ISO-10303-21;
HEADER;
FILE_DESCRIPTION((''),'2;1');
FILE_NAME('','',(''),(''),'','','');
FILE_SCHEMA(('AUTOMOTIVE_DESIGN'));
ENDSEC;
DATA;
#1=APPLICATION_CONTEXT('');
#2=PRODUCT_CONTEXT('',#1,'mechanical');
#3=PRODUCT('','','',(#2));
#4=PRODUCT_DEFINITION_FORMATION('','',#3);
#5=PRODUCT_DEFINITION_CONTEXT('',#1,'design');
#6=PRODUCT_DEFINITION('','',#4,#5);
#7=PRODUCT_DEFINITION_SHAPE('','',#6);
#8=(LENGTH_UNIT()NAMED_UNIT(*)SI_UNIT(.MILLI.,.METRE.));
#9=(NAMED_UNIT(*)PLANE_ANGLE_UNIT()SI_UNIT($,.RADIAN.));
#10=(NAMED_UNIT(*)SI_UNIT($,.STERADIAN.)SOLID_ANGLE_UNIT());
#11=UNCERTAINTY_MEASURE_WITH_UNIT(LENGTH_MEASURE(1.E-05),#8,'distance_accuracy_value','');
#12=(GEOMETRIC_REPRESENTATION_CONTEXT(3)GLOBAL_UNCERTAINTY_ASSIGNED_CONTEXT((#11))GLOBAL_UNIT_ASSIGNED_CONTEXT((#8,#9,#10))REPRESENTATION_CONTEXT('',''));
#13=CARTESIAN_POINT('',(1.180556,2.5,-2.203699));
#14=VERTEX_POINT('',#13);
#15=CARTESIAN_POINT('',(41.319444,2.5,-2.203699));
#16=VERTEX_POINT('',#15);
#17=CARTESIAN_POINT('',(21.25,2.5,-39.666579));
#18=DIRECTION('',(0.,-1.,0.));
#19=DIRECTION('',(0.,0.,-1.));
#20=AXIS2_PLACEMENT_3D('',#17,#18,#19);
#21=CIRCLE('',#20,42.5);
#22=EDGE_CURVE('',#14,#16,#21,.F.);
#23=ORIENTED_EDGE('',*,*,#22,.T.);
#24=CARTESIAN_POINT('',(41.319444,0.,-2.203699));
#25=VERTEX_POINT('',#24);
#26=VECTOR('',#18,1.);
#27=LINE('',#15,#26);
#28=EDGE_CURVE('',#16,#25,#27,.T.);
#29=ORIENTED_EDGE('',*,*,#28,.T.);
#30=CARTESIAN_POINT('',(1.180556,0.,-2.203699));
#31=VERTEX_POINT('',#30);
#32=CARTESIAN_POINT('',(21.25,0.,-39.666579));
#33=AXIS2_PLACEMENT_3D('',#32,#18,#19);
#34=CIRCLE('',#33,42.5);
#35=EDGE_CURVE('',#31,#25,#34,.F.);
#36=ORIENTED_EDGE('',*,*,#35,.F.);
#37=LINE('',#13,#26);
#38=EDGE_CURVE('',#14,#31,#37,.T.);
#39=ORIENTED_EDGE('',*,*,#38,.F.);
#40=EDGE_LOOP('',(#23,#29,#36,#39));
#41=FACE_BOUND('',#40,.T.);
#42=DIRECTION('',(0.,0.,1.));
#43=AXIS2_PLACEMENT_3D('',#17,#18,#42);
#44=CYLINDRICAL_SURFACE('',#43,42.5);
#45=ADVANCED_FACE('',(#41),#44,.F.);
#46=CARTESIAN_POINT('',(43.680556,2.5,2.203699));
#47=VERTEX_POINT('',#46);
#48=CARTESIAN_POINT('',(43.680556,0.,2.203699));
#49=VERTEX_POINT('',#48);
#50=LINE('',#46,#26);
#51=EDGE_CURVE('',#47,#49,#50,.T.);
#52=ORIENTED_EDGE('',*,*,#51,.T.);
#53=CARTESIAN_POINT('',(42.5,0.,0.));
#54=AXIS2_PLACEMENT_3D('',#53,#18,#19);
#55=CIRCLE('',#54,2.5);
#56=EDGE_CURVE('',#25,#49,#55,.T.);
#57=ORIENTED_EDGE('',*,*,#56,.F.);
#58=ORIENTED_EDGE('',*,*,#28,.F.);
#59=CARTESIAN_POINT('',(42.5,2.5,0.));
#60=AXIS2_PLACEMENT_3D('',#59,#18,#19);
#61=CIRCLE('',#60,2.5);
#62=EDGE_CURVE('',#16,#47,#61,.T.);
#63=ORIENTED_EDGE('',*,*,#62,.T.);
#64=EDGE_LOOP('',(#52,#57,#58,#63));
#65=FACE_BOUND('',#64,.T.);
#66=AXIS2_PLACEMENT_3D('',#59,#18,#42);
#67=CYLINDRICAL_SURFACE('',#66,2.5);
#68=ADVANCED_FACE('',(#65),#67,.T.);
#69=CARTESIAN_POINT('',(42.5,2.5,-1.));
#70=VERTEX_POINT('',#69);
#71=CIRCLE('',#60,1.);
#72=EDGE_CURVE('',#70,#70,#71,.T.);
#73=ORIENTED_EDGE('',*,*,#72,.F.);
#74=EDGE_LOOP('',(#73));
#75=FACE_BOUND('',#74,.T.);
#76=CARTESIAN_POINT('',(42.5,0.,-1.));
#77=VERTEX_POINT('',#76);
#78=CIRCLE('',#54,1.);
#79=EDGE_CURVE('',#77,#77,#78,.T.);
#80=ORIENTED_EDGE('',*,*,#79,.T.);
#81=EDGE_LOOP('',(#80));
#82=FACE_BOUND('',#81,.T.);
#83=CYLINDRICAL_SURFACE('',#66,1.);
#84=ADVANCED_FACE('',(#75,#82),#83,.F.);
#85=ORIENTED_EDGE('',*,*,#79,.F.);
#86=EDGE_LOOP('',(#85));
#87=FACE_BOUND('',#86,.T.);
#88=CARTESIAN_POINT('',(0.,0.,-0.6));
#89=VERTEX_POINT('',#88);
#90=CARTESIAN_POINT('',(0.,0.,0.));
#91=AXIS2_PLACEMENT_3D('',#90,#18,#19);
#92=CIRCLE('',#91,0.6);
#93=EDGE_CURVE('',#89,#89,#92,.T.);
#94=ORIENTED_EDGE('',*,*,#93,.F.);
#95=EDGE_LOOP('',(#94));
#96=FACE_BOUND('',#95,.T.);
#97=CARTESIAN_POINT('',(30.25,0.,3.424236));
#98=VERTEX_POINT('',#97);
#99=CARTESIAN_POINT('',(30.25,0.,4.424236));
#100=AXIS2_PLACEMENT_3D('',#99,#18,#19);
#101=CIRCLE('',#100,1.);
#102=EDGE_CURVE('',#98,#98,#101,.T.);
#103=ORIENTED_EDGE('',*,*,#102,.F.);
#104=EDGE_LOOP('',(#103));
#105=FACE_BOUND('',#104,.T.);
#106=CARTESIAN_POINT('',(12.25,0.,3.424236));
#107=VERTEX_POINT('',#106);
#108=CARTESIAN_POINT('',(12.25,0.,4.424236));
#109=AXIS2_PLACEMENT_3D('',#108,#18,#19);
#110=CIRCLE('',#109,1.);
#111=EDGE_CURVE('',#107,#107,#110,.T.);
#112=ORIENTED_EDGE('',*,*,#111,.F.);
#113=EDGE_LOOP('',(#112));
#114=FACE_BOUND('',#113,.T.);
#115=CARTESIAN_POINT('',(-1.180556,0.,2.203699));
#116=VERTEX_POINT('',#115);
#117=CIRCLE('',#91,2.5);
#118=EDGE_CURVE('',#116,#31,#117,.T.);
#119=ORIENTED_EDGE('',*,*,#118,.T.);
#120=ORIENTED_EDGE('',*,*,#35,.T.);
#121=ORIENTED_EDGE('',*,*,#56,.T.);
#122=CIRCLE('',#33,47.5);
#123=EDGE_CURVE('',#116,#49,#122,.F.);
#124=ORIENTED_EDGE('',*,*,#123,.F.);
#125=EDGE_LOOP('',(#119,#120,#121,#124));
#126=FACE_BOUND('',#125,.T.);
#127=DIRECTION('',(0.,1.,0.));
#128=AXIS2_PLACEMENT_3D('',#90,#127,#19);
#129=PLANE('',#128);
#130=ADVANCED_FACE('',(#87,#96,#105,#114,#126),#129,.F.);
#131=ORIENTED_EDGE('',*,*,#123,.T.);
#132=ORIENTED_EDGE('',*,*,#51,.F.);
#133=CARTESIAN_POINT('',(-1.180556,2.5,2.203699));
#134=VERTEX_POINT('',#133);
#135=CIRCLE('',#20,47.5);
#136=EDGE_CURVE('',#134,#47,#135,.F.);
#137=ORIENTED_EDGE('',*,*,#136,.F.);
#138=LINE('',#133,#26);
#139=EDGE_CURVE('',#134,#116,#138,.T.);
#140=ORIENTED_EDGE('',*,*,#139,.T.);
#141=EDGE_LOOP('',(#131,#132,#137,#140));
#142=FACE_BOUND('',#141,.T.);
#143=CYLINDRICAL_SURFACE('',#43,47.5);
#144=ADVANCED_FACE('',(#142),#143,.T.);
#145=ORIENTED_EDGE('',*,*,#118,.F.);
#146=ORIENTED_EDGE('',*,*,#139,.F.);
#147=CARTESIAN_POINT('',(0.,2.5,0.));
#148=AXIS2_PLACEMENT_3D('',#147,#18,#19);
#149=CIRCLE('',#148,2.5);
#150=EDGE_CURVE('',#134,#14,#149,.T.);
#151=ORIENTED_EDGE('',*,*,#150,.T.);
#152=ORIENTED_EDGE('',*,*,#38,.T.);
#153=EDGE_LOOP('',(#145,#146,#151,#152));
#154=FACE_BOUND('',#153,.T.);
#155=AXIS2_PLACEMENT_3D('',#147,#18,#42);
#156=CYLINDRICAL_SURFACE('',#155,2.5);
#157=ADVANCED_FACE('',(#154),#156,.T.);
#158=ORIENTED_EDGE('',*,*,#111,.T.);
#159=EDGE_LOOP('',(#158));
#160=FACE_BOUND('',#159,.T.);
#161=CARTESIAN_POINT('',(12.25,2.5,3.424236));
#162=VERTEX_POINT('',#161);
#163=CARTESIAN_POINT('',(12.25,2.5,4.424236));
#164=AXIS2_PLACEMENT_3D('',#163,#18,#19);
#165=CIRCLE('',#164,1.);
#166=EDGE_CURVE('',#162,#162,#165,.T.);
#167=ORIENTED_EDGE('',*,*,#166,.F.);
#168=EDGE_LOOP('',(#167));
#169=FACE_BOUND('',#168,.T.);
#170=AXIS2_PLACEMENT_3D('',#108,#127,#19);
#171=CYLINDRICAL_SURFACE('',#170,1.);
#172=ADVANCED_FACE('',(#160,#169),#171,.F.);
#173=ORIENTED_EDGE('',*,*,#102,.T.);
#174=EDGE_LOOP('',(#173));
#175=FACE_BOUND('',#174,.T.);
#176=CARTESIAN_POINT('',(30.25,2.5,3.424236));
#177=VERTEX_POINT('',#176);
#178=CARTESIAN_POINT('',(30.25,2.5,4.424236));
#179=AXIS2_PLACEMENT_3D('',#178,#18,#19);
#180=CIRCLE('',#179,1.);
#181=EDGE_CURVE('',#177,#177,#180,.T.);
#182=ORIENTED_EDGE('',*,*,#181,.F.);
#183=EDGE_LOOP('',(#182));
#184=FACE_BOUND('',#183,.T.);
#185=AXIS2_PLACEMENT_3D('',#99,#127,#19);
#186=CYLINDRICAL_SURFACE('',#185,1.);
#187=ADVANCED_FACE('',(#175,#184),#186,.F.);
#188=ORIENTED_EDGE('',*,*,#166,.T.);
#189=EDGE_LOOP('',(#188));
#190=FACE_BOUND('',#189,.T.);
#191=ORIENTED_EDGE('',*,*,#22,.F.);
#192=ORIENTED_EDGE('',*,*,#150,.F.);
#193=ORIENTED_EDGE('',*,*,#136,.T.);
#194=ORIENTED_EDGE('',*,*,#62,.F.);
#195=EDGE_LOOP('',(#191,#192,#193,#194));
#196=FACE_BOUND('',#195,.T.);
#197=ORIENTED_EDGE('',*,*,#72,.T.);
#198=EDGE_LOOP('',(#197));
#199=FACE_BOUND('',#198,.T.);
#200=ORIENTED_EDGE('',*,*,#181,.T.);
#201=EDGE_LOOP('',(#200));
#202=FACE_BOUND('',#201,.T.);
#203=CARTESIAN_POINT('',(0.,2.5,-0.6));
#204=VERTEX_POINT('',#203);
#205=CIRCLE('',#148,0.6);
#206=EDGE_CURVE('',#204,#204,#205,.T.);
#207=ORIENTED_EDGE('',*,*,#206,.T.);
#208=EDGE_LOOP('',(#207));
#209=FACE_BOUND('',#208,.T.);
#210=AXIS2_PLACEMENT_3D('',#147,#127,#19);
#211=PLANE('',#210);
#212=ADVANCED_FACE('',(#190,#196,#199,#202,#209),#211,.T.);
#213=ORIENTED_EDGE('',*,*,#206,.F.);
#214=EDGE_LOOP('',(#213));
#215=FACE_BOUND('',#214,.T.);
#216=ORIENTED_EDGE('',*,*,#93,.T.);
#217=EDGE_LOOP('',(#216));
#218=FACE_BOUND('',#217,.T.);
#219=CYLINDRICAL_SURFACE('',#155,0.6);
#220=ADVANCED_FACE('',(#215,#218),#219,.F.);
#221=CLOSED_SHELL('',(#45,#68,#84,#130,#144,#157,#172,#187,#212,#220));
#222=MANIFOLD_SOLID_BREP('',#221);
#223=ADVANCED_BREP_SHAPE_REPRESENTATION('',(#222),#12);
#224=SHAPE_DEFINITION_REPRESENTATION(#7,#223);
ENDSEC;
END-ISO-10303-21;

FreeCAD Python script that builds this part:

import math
import FreeCAD as App
import Part
import Sketcher

V = App.Vector

doc = App.newDocument("Part")
body = doc.addObject("PartDesign::Body", "Body")

sketch1 = doc.addObject("Sketcher::SketchObject", "Sketch")
body.addObject(sketch1)
sketch1.AttachmentSupport = (doc.XZ_Plane, [""])
sketch1.MapMode = "FlatFace"
sketch1.addGeometry([
    Part.ArcOfCircle(Part.Circle(V(0, 0, 0), V(0, 0, 1), 2.5), math.radians(62), math.radians(242)),
    Part.ArcOfCircle(Part.Circle(V(21.2, 39.7, 0), V(0, 0, 1), 42.5), math.radians(-118), math.radians(-62)),
    Part.ArcOfCircle(Part.Circle(V(42.5, 0, 0), V(0, 0, 1), 2.5), math.radians(-62), math.radians(118)),
    Part.ArcOfCircle(Part.Circle(V(21.2, 39.7, 0), V(0, 0, 1), 47.5), math.radians(-118), math.radians(-62)),
    Part.Circle(V(0, 0, 0), V(0, 0, 1), 0.6),
    Part.Circle(V(42.5, 0, 0), V(0, 0, 1), 1),
], False)
sketch1.addConstraint([
    Sketcher.Constraint("Tangent", 0, 1, 1, 1),
    Sketcher.Constraint("Tangent", 1, 2, 2, 2),
    Sketcher.Constraint("Tangent", 2, 1, 3, 2),
    Sketcher.Constraint("Tangent", 3, 1, 0, 2),
    Sketcher.Constraint("Coincident", 0, 3, -1, 1),
    Sketcher.Constraint("Coincident", 4, 3, -1, 1),
    Sketcher.Constraint("Coincident", 3, 3, 1, 3),
    Sketcher.Constraint("Coincident", 5, 3, 2, 3),
    Sketcher.Constraint("PointOnObject", 2, 3, -1),
    Sketcher.Constraint("Diameter", 5, 2.0),
    Sketcher.Constraint("Diameter", 4, 1.2),
    Sketcher.Constraint("Radius", 0, 2.5),
    Sketcher.Constraint("Radius", 1, 42.5),
    Sketcher.Constraint("DistanceX", -1, 1, 2, 3, 42.5),
])
pad1 = doc.addObject("PartDesign::Pad", "Pad")
body.addObject(pad1)
pad1.Profile = sketch1
pad1.Length = 2.5
pad1.Reversed = True

sketch2 = doc.addObject("Sketcher::SketchObject", "Sketch001")
body.addObject(sketch2)
sketch2.AttachmentSupport = (doc.XZ_Plane, [""])
sketch2.MapMode = "FlatFace"
sketch2.AttachmentOffset = App.Placement(V(0, 0, -2.5), App.Rotation())
sketch2.addGeometry([
    Part.Circle(V(12.2, -4.4, 0), V(0, 0, 1), 1),
    Part.Circle(V(30.2, -4.4, 0), V(0, 0, 1), 1),
], False)
sketch2.addConstraint([
    Sketcher.Constraint("Equal", 0, 1),
    Sketcher.Constraint("Horizontal", 0, 3, 1, 3),
    Sketcher.Constraint("Diameter", 0, 2.0),
    Sketcher.Constraint("DistanceX", 0, 3, 1, 3, 18.0),
    Sketcher.Constraint("DistanceX", -1, 1, 0, 3, 12.25),
    Sketcher.Constraint("DistanceY", 0, 3, -1, 1, 4.424236),
])
pocket1 = doc.addObject("PartDesign::Pocket", "Pocket")
body.addObject(pocket1)
pocket1.Profile = sketch2
pocket1.Type = "ThroughAll"
pocket1.Reversed = True
body2 = doc.addObject("PartDesign::Body", "Body001")
doc.recompute()

mirroring = doc.addObject("Part::Mirroring", "Mirroring")
mirroring.Source = body
mirroring.Base = V(0, 0, 0)
mirroring.Normal = V(0, 0, 1)
body2.BaseFeature = mirroring
doc.recompute()
body.Visibility = False
mirroring.Visibility = False

doc.recompute()
